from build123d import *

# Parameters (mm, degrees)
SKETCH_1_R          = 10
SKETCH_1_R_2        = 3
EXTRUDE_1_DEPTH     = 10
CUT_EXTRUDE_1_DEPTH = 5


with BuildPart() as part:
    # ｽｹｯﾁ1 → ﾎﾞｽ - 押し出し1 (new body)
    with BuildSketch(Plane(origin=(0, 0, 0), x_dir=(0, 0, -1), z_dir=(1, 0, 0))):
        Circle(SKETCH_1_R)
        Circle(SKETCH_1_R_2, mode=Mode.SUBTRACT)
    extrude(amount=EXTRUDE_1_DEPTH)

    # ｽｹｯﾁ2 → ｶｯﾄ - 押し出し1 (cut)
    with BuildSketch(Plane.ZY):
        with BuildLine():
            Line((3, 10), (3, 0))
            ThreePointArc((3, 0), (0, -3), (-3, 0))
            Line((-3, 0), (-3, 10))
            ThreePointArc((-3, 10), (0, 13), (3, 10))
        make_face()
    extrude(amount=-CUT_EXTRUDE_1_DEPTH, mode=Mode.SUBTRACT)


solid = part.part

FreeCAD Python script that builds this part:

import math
import FreeCAD as App
import Part
import Sketcher

doc = App.newDocument("Part")
params = doc.addObject("Spreadsheet::Sheet", "Params")
for row, (alias, value) in enumerate([
    ("sketch1_diameter", "20 mm"),
    ("sketch1_diameter2", "6 mm"),
    ("pad1_length", "10 mm"),
    ("sketch2_radius", "3 mm"),
    ("sketch2_width", "10 mm"),
    ("pocket1_length", "5 mm"),
], start=1):
    params.set(f"A{row}", alias)
    params.set(f"B{row}", "=" + value)
    params.setAlias(f"B{row}", alias)

body = doc.addObject("PartDesign::Body", "Body")

# Sketch on YZ plane
sketch1 = doc.addObject("Sketcher::SketchObject", "Sketch")
body.addObject(sketch1)
sketch1.AttachmentSupport = (doc.YZ_Plane, [""])
sketch1.MapMode = "FlatFace"
sketch1.addGeometry([
    Part.Circle(App.Vector(0, 0, 0), App.Vector(0, 0, 1), 10),
    Part.Circle(App.Vector(0, 0, 0), App.Vector(0, 0, 1), 3),
], False)
sketch1.addConstraint([
    Sketcher.Constraint("Coincident", 0, 3, -1, 1),
    Sketcher.Constraint("Coincident", 1, 3, -1, 1),
    Sketcher.Constraint("Diameter", 0, 20.0),
    Sketcher.Constraint("Diameter", 1, 6.0),
])
sketch1.setExpression("Constraints[2]", "Params.sketch1_diameter")
sketch1.setExpression("Constraints[3]", "Params.sketch1_diameter2")
pad1 = doc.addObject("PartDesign::Pad", "Pad")
body.addObject(pad1)
pad1.Profile = sketch1
pad1.setExpression("Length", "Params.pad1_length")

# Sketch on YZ plane
sketch2 = doc.addObject("Sketcher::SketchObject", "Sketch001")
body.addObject(sketch2)
sketch2.AttachmentSupport = (doc.YZ_Plane, [""])
sketch2.MapMode = "FlatFace"
sketch2.addGeometry([
    Part.LineSegment(App.Vector(0, 3, 0), App.Vector(10, 3, 0)),
    Part.ArcOfCircle(Part.Circle(App.Vector(10, 0, 0), App.Vector(0, 0, 1), 3), math.radians(-90), math.radians(90)),
    Part.LineSegment(App.Vector(10, -3, 0), App.Vector(0, -3, 0)),
    Part.ArcOfCircle(Part.Circle(App.Vector(0, 0, 0), App.Vector(0, 0, 1), 3), math.radians(90), math.radians(270)),
], False)
sketch2.addConstraint([
    Sketcher.Constraint("Tangent", 0, 2, 1, 2),
    Sketcher.Constraint("Tangent", 1, 1, 2, 1),
    Sketcher.Constraint("Tangent", 2, 2, 3, 2),
    Sketcher.Constraint("Tangent", 3, 1, 0, 1),
    Sketcher.Constraint("Horizontal", 0),
    Sketcher.Constraint("Horizontal", 2),
    Sketcher.Constraint("Coincident", 3, 3, -1, 1),
    Sketcher.Constraint("Radius", 1, 3.0),
    Sketcher.Constraint("DistanceX", 0, 1, 0, 2, 10.0),
])
sketch2.setExpression("Constraints[7]", "Params.sketch2_radius")
sketch2.setExpression("Constraints[8]", "Params.sketch2_width")
pocket1 = doc.addObject("PartDesign::Pocket", "Pocket")
body.addObject(pocket1)
pocket1.Profile = sketch2
pocket1.setExpression("Length", "Params.pocket1_length")
pocket1.Reversed = True

doc.recompute()
